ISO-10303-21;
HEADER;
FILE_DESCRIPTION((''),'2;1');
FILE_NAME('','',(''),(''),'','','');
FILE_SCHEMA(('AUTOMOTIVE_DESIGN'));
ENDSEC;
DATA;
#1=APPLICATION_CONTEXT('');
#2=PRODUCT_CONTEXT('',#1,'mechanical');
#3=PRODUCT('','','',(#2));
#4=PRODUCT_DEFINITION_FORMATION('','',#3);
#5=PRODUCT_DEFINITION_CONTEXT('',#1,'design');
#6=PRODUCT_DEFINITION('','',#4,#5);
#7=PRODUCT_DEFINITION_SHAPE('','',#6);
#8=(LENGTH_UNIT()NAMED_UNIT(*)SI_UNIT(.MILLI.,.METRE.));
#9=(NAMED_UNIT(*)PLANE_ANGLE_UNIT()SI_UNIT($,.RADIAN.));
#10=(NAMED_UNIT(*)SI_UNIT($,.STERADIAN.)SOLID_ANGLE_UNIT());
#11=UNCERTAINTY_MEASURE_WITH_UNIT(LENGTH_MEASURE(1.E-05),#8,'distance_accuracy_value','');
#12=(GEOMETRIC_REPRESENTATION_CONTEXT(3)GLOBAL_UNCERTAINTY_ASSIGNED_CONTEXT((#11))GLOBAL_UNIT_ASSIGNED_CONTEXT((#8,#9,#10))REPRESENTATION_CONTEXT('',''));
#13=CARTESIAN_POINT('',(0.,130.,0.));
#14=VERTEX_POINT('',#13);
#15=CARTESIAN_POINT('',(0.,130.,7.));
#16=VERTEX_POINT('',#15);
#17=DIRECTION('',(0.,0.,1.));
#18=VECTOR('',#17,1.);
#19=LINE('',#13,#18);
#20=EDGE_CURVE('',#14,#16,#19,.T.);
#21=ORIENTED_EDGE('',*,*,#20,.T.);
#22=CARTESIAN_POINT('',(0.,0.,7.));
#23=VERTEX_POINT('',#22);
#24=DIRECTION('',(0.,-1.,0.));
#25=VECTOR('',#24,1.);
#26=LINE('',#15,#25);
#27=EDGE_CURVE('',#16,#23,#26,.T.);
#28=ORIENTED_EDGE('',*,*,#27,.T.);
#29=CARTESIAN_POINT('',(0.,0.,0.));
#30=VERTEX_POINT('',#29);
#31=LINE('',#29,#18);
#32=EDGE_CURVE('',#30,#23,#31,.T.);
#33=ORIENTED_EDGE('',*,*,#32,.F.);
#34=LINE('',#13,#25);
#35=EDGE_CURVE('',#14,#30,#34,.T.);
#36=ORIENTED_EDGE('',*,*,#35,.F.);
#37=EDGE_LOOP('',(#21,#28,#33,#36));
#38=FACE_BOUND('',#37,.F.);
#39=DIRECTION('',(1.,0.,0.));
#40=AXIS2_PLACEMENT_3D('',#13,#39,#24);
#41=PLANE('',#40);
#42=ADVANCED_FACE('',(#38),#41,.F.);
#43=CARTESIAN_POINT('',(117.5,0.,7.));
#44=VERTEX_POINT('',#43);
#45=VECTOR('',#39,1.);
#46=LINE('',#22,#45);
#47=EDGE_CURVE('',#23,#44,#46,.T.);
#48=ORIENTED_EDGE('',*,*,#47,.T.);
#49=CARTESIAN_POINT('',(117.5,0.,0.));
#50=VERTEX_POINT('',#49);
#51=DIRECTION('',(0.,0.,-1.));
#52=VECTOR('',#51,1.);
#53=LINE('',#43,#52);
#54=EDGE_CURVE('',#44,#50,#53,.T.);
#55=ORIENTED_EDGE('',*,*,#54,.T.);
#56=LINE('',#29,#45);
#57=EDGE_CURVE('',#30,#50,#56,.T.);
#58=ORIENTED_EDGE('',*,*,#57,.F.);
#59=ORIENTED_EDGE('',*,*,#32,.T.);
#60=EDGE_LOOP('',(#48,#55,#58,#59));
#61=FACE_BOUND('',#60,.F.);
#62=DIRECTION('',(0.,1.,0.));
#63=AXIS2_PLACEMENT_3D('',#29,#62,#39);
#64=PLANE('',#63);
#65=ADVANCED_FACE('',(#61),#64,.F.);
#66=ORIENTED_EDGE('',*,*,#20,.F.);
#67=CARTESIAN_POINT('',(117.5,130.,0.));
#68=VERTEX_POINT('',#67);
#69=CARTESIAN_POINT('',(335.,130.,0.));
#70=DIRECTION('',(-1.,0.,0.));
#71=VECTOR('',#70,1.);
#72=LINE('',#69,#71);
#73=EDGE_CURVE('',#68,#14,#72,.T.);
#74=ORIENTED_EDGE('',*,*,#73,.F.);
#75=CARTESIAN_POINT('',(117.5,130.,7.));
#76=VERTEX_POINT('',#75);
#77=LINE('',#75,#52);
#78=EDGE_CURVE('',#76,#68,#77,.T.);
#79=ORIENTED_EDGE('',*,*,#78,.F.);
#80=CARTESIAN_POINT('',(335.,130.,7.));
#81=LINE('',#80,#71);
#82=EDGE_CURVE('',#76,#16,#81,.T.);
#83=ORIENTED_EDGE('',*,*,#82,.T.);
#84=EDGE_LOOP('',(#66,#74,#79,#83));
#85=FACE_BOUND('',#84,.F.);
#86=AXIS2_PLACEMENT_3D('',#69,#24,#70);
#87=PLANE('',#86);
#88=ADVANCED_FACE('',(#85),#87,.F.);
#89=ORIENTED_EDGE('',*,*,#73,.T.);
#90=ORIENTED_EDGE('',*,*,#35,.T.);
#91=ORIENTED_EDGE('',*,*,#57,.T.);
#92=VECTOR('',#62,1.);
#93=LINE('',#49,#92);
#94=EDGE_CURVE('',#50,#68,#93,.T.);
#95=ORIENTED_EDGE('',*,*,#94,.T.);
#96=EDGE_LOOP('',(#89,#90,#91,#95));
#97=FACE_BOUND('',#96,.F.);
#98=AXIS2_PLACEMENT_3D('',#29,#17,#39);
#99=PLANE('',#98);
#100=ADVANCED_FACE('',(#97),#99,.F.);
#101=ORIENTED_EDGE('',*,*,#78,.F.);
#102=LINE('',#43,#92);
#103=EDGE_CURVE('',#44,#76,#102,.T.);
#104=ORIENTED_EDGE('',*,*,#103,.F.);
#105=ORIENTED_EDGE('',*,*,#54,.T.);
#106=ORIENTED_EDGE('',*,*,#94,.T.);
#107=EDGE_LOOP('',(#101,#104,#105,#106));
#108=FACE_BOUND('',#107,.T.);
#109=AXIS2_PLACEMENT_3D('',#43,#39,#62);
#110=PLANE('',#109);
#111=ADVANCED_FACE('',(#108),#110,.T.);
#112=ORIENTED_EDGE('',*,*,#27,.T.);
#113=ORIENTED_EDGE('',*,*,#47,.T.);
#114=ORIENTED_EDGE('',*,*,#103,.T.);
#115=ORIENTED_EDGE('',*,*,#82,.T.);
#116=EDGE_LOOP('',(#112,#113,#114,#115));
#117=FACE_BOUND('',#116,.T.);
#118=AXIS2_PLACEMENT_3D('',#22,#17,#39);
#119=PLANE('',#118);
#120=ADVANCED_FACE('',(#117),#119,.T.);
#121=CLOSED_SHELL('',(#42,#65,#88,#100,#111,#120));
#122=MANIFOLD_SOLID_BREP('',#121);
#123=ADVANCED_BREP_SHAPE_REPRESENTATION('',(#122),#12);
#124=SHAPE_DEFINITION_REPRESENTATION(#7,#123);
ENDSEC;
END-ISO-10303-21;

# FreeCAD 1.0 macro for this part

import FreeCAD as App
import Part
import Sketcher

doc = App.newDocument("Part")
body = doc.addObject("PartDesign::Body", "Body")
body.AllowCompound = True

sketch1 = body.newObject("Sketcher::SketchObject", "Sketch")
sketch1.AttachmentSupport = (doc.getObject("XY_Plane"), [""])
sketch1.MapMode = "FlatFace"
sketch1.addGeometry([
    Part.LineSegment(App.Vector(0, 130, 0), App.Vector(0, 0, 0)),
    Part.LineSegment(App.Vector(0, 0, 0), App.Vector(335, 0, 0)),
    Part.LineSegment(App.Vector(335, 0, 0), App.Vector(335, 130, 0)),
    Part.LineSegment(App.Vector(335, 130, 0), App.Vector(0, 130, 0)),
], False)
sketch1.addConstraint([
    Sketcher.Constraint("Coincident", 0, 2, 1, 1),
    Sketcher.Constraint("Coincident", 1, 2, 2, 1),
    Sketcher.Constraint("Coincident", 2, 2, 3, 1),
    Sketcher.Constraint("Coincident", 3, 2, 0, 1),
    Sketcher.Constraint("Vertical", 0),
    Sketcher.Constraint("Horizontal", 1),
    Sketcher.Constraint("Vertical", 2),
    Sketcher.Constraint("Horizontal", 3),
    Sketcher.Constraint("Coincident", 0, 2, -1, 1),
    Sketcher.Constraint("DistanceX", 1, 1, 1, 2, 335.0),
    Sketcher.Constraint("DistanceY", 0, 2, 0, 1, 130.0),
])
pad1 = body.newObject("PartDesign::Pad", "Pad")
pad1.Profile = sketch1
pad1.Length = 7

sketch2 = body.newObject("Sketcher::SketchObject", "Sketch001")
sketch2.AttachmentSupport = (doc.getObject("XY_Plane"), [""])
sketch2.MapMode = "FlatFace"
sketch2.AttachmentOffset = App.Placement(App.Vector(0, 0, 7), App.Rotation())
sketch2.addGeometry([
    Part.LineSegment(App.Vector(118, 130, 0), App.Vector(118, 0, 0)),
    Part.LineSegment(App.Vector(118, 0, 0), App.Vector(218, 0, 0)),
    Part.LineSegment(App.Vector(218, 0, 0), App.Vector(218, 130, 0)),
    Part.LineSegment(App.Vector(218, 130, 0), App.Vector(118, 130, 0)),
], False)
sketch2.addConstraint([
    Sketcher.Constraint("Coincident", 0, 2, 1, 1),
    Sketcher.Constraint("Coincident", 1, 2, 2, 1),
    Sketcher.Constraint("Coincident", 2, 2, 3, 1),
    Sketcher.Constraint("Coincident", 3, 2, 0, 1),
    Sketcher.Constraint("Vertical", 0),
    Sketcher.Constraint("Horizontal", 1),
    Sketcher.Constraint("Vertical", 2),
    Sketcher.Constraint("Horizontal", 3),
    Sketcher.Constraint("PointOnObject", 0, 2, -1),
    Sketcher.Constraint("DistanceX", 1, 1, 1, 2, 100.0),
    Sketcher.Constraint("DistanceY", 0, 2, 0, 1, 130.0),
    Sketcher.Constraint("DistanceX", -1, 1, 0, 2, 117.5),
])
pocket1 = body.newObject("PartDesign::Pocket", "Pocket")
pocket1.Profile = sketch2
pocket1.Length = 10

sketch3 = body.newObject("Sketcher::SketchObject", "Sketch002")
sketch3.AttachmentSupport = (doc.getObject("XY_Plane"), [""])
sketch3.MapMode = "FlatFace"
sketch3.AttachmentOffset = App.Placement(App.Vector(0, 0, 7), App.Rotation())
sketch3.addGeometry([
    Part.LineSegment(App.Vector(335, 0, 0), App.Vector(335, 130, 0)),
    Part.LineSegment(App.Vector(335, 130, 0), App.Vector(218, 130, 0)),
    Part.LineSegment(App.Vector(218, 130, 0), App.Vector(218, 0, 0)),
    Part.LineSegment(App.Vector(218, 0, 0), App.Vector(335, 0, 0)),
], False)
sketch3.addConstraint([
    Sketcher.Constraint("Coincident", 0, 2, 1, 1),
    Sketcher.Constraint("Coincident", 1, 2, 2, 1),
    Sketcher.Constraint("Coincident", 2, 2, 3, 1),
    Sketcher.Constraint("Coincident", 3, 2, 0, 1),
    Sketcher.Constraint("Vertical", 0),
    Sketcher.Constraint("Horizontal", 1),
    Sketcher.Constraint("Vertical", 2),
    Sketcher.Constraint("Horizontal", 3),
    Sketcher.Constraint("PointOnObject", 2, 2, -1),
    Sketcher.Constraint("DistanceY", 0, 1, 0, 2, 130.0),
    Sketcher.Constraint("DistanceX", 1, 2, 1, 1, 117.5),
    Sketcher.Constraint("DistanceX", -1, 1, 0, 2, 335.0),
])
pocket2 = body.newObject("PartDesign::Pocket", "Pocket001")
pocket2.Profile = sketch3
pocket2.Length = 10

doc.recompute()
